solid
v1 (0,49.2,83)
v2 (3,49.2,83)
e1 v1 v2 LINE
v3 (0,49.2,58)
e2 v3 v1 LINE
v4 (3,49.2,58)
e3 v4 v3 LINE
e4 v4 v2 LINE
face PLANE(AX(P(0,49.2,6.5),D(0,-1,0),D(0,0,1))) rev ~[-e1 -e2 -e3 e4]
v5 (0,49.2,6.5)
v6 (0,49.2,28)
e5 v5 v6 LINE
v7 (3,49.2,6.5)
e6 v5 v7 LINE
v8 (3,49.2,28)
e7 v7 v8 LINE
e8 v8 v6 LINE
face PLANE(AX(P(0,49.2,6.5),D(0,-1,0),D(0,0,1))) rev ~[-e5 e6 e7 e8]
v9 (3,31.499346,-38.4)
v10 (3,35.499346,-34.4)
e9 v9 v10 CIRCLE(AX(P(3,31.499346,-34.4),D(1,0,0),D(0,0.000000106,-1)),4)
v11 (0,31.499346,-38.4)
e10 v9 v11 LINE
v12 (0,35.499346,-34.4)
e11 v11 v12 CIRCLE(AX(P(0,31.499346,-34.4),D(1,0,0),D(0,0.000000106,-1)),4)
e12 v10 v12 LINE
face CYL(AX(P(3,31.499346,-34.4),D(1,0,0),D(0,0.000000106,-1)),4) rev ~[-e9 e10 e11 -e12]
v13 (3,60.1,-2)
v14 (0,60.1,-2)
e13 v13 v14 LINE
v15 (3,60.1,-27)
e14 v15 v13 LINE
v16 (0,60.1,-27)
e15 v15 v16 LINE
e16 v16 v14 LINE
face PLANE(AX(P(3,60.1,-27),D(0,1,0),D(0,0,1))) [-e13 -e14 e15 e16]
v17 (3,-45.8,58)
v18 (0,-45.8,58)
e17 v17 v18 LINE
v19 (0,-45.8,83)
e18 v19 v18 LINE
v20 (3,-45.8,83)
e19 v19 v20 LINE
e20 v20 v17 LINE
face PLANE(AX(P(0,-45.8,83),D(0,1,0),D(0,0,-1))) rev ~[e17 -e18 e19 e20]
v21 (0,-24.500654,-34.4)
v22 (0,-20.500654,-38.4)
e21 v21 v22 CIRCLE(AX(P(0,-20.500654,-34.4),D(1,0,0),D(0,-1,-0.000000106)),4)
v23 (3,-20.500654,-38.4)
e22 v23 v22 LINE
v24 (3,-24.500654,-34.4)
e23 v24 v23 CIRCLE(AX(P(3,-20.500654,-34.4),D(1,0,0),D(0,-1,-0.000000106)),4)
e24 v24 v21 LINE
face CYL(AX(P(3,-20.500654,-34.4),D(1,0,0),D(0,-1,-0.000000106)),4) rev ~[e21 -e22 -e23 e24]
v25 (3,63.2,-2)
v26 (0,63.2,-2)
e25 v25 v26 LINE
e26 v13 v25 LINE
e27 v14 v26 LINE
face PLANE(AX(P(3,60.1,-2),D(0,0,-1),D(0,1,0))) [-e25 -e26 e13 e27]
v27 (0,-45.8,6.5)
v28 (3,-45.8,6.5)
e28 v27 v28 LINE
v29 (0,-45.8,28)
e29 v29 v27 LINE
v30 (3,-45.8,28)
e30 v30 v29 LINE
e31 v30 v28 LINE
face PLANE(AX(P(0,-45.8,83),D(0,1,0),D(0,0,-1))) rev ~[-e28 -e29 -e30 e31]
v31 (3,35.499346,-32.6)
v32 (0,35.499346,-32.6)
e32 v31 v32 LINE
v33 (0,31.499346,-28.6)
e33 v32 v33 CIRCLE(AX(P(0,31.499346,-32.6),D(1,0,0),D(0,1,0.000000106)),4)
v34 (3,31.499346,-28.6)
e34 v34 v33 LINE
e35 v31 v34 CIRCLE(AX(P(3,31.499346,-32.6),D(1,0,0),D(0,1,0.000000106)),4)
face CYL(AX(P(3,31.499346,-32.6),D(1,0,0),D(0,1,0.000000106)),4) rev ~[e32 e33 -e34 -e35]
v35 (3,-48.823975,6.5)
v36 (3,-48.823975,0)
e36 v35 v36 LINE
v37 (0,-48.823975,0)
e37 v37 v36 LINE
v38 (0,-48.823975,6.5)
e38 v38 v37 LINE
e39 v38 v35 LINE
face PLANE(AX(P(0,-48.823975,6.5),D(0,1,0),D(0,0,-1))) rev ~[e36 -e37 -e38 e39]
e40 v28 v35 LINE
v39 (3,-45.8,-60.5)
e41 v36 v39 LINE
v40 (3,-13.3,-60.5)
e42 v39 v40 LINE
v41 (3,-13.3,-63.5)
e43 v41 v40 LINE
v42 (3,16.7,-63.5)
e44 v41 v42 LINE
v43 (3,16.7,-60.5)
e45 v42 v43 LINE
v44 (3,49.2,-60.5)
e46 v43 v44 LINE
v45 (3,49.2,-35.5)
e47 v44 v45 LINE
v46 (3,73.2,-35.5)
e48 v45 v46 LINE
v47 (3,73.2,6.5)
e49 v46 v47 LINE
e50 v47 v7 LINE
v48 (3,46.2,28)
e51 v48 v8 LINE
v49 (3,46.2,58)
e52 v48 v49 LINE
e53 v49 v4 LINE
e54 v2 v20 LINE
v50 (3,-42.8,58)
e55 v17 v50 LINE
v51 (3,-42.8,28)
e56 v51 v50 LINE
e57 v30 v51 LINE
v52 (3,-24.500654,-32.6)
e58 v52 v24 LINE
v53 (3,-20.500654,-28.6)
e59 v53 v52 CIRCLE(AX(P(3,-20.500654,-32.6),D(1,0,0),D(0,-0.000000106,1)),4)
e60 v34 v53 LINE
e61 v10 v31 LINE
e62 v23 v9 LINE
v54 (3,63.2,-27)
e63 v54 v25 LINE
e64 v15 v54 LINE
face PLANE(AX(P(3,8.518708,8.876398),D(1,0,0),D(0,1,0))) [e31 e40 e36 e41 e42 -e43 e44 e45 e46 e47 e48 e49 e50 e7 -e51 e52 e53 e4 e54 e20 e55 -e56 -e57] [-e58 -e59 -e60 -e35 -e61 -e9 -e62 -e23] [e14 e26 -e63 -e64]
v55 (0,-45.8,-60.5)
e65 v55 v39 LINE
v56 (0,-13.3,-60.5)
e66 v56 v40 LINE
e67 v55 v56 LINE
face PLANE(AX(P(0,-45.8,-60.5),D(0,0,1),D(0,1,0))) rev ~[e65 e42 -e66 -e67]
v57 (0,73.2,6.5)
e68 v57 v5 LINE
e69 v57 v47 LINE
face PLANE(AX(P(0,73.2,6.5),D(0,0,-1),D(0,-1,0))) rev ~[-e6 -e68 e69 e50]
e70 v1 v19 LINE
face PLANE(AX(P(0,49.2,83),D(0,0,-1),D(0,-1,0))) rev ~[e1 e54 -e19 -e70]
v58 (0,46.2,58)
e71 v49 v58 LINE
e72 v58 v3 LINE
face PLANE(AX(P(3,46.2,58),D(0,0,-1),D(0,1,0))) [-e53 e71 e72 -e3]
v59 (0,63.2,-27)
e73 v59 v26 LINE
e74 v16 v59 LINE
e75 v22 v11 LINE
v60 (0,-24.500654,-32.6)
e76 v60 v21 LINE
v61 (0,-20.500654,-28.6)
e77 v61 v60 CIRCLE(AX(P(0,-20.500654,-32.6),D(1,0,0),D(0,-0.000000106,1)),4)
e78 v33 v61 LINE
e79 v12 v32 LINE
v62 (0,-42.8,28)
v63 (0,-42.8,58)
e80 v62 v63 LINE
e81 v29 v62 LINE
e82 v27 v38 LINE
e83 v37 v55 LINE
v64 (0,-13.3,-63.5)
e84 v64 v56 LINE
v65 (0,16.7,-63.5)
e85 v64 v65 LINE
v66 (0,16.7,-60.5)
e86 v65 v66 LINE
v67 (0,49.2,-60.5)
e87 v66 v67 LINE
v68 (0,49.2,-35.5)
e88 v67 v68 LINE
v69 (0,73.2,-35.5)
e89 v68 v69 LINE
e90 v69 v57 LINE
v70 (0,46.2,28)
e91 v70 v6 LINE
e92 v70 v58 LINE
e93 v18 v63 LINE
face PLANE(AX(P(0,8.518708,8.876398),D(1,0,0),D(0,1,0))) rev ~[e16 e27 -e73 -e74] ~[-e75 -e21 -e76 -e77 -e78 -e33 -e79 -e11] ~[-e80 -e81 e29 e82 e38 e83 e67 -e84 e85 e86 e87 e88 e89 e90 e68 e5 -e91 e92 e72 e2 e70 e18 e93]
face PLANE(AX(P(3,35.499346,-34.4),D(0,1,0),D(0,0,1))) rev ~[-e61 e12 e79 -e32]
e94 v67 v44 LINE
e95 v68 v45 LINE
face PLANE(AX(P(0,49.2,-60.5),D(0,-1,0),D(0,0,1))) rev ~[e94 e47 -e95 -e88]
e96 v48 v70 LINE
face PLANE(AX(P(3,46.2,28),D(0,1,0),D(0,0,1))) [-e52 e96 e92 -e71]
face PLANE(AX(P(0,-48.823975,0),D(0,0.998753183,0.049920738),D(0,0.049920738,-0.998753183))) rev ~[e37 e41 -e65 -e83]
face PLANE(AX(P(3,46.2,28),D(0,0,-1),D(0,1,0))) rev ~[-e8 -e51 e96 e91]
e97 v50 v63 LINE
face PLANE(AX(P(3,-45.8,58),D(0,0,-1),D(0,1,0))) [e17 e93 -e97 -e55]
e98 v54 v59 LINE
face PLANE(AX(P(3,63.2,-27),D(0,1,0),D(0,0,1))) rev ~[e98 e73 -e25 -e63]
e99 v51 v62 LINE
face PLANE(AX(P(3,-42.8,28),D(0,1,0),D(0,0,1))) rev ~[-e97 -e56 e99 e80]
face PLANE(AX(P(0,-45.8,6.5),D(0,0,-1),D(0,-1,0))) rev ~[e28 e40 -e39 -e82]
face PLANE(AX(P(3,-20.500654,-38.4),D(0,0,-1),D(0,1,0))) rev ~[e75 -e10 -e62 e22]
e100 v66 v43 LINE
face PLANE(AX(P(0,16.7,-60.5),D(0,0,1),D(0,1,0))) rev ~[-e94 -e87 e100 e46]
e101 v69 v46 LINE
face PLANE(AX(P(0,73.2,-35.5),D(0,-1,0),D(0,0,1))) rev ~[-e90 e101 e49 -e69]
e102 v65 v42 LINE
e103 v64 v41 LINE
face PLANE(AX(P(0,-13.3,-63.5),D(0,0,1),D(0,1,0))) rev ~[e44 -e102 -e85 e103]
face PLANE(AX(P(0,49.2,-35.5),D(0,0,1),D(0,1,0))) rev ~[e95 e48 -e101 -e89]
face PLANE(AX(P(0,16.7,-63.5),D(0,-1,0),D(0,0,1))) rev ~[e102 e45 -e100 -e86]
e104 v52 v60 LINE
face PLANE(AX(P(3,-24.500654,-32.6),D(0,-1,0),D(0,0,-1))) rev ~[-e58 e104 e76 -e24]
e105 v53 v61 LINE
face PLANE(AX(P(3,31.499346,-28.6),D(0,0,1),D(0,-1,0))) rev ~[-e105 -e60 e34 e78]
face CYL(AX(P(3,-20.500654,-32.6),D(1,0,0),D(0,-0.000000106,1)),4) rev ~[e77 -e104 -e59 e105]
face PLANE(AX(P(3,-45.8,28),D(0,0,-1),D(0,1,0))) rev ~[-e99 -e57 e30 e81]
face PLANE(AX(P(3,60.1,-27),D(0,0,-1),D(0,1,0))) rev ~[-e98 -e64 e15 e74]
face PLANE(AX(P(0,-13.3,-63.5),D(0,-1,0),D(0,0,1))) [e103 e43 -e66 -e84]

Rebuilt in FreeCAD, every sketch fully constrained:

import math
import FreeCAD as App
import Part
import Sketcher
Q = App.Units.Quantity


def add_polygon(sketch, points):
    """Adds a closed chain of lines whose ends are joined by coincident constraints."""
    first, n = sketch.GeometryCount, len(points)
    for a, b in zip(points, points[1:] + points[:1]):
        sketch.addGeometry(Part.LineSegment(App.Vector(*a, 0), App.Vector(*b, 0)), False)
    for i in range(n):
        sketch.addConstraint(Sketcher.Constraint("Coincident", first + i, 2, first + (i + 1) % n, 1))

doc = App.newDocument("Part")
body = doc.addObject("PartDesign::Body", "Body")

# Sketch on YZ plane
sketch1 = doc.addObject("Sketcher::SketchObject", "Sketch")
body.addObject(sketch1)
sketch1.AttachmentSupport = (doc.YZ_Plane, [""])
sketch1.MapMode = "FlatFace"
add_polygon(sketch1, [(-45.8, 83), (-45.8, 6.5), (-48.823975, 6.5), (-48.823975, 0), (-45.8, -60.5), (-13.3, -60.5), (-13.3, -63.5), (16.7, -63.5), (16.7, -60.5), (49.2, -60.5), (49.2, -35.5), (73.2, -35.5), (73.2, 6.5), (49.2, 6.5), (49.2, 83)])  # lines 0-14
sketch1.addConstraint(Sketcher.Constraint("Vertical", 0))
sketch1.addConstraint(Sketcher.Constraint("Horizontal", 1))
sketch1.addConstraint(Sketcher.Constraint("Vertical", 2))
sketch1.addConstraint(Sketcher.Constraint("Horizontal", 4))
sketch1.addConstraint(Sketcher.Constraint("Vertical", 5))
sketch1.addConstraint(Sketcher.Constraint("Horizontal", 6))
sketch1.addConstraint(Sketcher.Constraint("Vertical", 7))
sketch1.addConstraint(Sketcher.Constraint("Horizontal", 8))
sketch1.addConstraint(Sketcher.Constraint("Vertical", 9))
sketch1.addConstraint(Sketcher.Constraint("Horizontal", 10))
sketch1.addConstraint(Sketcher.Constraint("Vertical", 11))
sketch1.addConstraint(Sketcher.Constraint("Horizontal", 12))
sketch1.addConstraint(Sketcher.Constraint("Vertical", 13))
sketch1.addConstraint(Sketcher.Constraint("Horizontal", 14))
sketch1.addConstraint(Sketcher.Constraint("PointOnObject", 2, 2, -1))
sketch1.addConstraint(Sketcher.Constraint("Horizontal", 4, 2, 7, 2))
sketch1.addConstraint(Sketcher.Constraint("Horizontal", 1, 2, 11, 2))
sketch1.addConstraint(Sketcher.Constraint("Vertical", 0, 2, 3, 2))
sketch1.addConstraint(Sketcher.Constraint("Vertical", 9, 2, 12, 2))
sketch1.addConstraint(Sketcher.Constraint("Equal", 4, 8))
sketch1.addConstraint(Sketcher.Constraint("DistanceX", 6, 1, 6, 2, Q("30 mm")))
sketch1.addConstraint(Sketcher.Constraint("DistanceX", 10, 1, 10, 2, Q("24 mm")))
sketch1.addConstraint(Sketcher.Constraint("DistanceX", 14, 2, 14, 1, Q("95 mm")))
sketch1.addConstraint(Sketcher.Constraint("DistanceY", 5, 2, 5, 1, Q("3 mm")))
sketch1.addConstraint(Sketcher.Constraint("DistanceY", 9, 1, 9, 2, Q("25 mm")))
sketch1.addConstraint(Sketcher.Constraint("DistanceY", 11, 1, 11, 2, Q("42 mm")))
sketch1.addConstraint(Sketcher.Constraint("DistanceY", 0, 2, 0, 1, Q("76.5 mm")))
sketch1.addConstraint(Sketcher.Constraint("DistanceY", 2, 2, 2, 1, Q("6.5 mm")))
sketch1.addConstraint(Sketcher.Constraint("DistanceX", 0, 2, -1, 1, Q("45.8 mm")))
sketch1.addConstraint(Sketcher.Constraint("DistanceX", 1, 2, 1, 1, Q("3.023975 mm")))
pad1 = doc.addObject("PartDesign::Pad", "Pad")
body.addObject(pad1)
pad1.Profile = sketch1
pad1.Length = 3

# Sketch on YZ plane
sketch2 = doc.addObject("Sketcher::SketchObject", "Sketch001")
body.addObject(sketch2)
sketch2.AttachmentSupport = (doc.YZ_Plane, [""])
sketch2.MapMode = "FlatFace"
sketch2.AttachmentOffset = App.Placement(App.Vector(0, 0, 3), App.Rotation())
add_polygon(sketch2, [(60.1, -2), (60.1, -27), (63.2, -27), (63.2, -2)])  # lines 0-3
sketch2.addConstraint(Sketcher.Constraint("Vertical", 0))
sketch2.addConstraint(Sketcher.Constraint("Horizontal", 1))
sketch2.addConstraint(Sketcher.Constraint("Vertical", 2))
sketch2.addConstraint(Sketcher.Constraint("Horizontal", 3))
sketch2.addConstraint(Sketcher.Constraint("DistanceY", 0, 2, 0, 1, Q("25 mm")))
sketch2.addConstraint(Sketcher.Constraint("DistanceX", 1, 1, 1, 2, Q("3.1 mm")))
sketch2.addConstraint(Sketcher.Constraint("DistanceY", 0, 2, -1, 1, Q("27 mm")))
sketch2.addConstraint(Sketcher.Constraint("DistanceX", -1, 1, 0, 2, Q("60.1 mm")))
pocket1 = doc.addObject("PartDesign::Pocket", "Pocket")
body.addObject(pocket1)
pocket1.Profile = sketch2
pocket1.Length = 25

# Sketch on YZ plane
sketch3 = doc.addObject("Sketcher::SketchObject", "Sketch002")
body.addObject(sketch3)
sketch3.AttachmentSupport = (doc.YZ_Plane, [""])
sketch3.MapMode = "FlatFace"
sketch3.AttachmentOffset = App.Placement(App.Vector(0, 0, 3), App.Rotation())
sketch3.addGeometry(Part.LineSegment(App.Vector(31.499346, -28.6, 0), App.Vector(-20.500654, -28.6, 0)), False)
sketch3.addGeometry(Part.ArcOfCircle(Part.Circle(App.Vector(-20.500654, -32.6, 0), App.Vector(0, 0, 1), 4), math.radians(90.000006), math.radians(179.999994)), False)
sketch3.addGeometry(Part.LineSegment(App.Vector(-24.500654, -32.6, 0), App.Vector(-24.500654, -34.4, 0)), False)
sketch3.addGeometry(Part.ArcOfCircle(Part.Circle(App.Vector(-20.500654, -34.4, 0), App.Vector(0, 0, 1), 4), math.radians(-179.999994), math.radians(-90.000006)), False)
sketch3.addGeometry(Part.LineSegment(App.Vector(-20.500654, -38.4, 0), App.Vector(31.499346, -38.4, 0)), False)
sketch3.addGeometry(Part.ArcOfCircle(Part.Circle(App.Vector(31.499346, -34.4, 0), App.Vector(0, 0, 1), 4), math.radians(-89.999994), math.radians(-0.000006)), False)
sketch3.addGeometry(Part.LineSegment(App.Vector(35.499346, -34.4, 0), App.Vector(35.499346, -32.6, 0)), False)
sketch3.addGeometry(Part.ArcOfCircle(Part.Circle(App.Vector(31.499346, -32.6, 0), App.Vector(0, 0, 1), 4), math.radians(0.000006), math.radians(89.999994)), False)
sketch3.addConstraint(Sketcher.Constraint("Tangent", 0, 2, 1, 1))
sketch3.addConstraint(Sketcher.Constraint("Tangent", 1, 2, 2, 1))
sketch3.addConstraint(Sketcher.Constraint("Tangent", 2, 2, 3, 1))
sketch3.addConstraint(Sketcher.Constraint("Tangent", 3, 2, 4, 1))
sketch3.addConstraint(Sketcher.Constraint("Tangent", 4, 2, 5, 1))
sketch3.addConstraint(Sketcher.Constraint("Tangent", 5, 2, 6, 1))
sketch3.addConstraint(Sketcher.Constraint("Tangent", 6, 2, 7, 1))
sketch3.addConstraint(Sketcher.Constraint("Tangent", 7, 2, 0, 1))
sketch3.addConstraint(Sketcher.Constraint("Horizontal", 0))
sketch3.addConstraint(Sketcher.Constraint("Vertical", 2))
sketch3.addConstraint(Sketcher.Constraint("Horizontal", 4))
sketch3.addConstraint(Sketcher.Constraint("Vertical", 6))
sketch3.addConstraint(Sketcher.Constraint("Equal", 1, 3))
sketch3.addConstraint(Sketcher.Constraint("Equal", 3, 5))
sketch3.addConstraint(Sketcher.Constraint("Equal", 5, 7))
sketch3.addConstraint(Sketcher.Constraint("Radius", 1, Q("4 mm")))
sketch3.addConstraint(Sketcher.Constraint("DistanceX", 0, 2, 0, 1, Q("52 mm")))
sketch3.addConstraint(Sketcher.Constraint("DistanceY", 2, 2, 2, 1, Q("1.8 mm")))
sketch3.addConstraint(Sketcher.Constraint("DistanceY", 1, 3, -1, 1, Q("32.6 mm")))
sketch3.addConstraint(Sketcher.Constraint("DistanceX", 1, 3, -1, 1, Q("20.500654 mm")))
pocket2 = doc.addObject("PartDesign::Pocket", "Pocket001")
body.addObject(pocket2)
pocket2.Profile = sketch3
pocket2.Length = 25

# Sketch on YZ plane
sketch4 = doc.addObject("Sketcher::SketchObject", "Sketch003")
body.addObject(sketch4)
sketch4.AttachmentSupport = (doc.YZ_Plane, [""])
sketch4.MapMode = "FlatFace"
sketch4.AttachmentOffset = App.Placement(App.Vector(0, 0, 3), App.Rotation())
add_polygon(sketch4, [(-45.8, 58), (-45.8, 28), (-42.8, 28), (-42.8, 58)])  # lines 0-3
add_polygon(sketch4, [(46.2, 58), (46.2, 28), (49.2, 28), (49.2, 58)])  # lines 4-7
sketch4.addConstraint(Sketcher.Constraint("Vertical", 0))
sketch4.addConstraint(Sketcher.Constraint("Horizontal", 1))
sketch4.addConstraint(Sketcher.Constraint("Vertical", 2))
sketch4.addConstraint(Sketcher.Constraint("Horizontal", 3))
sketch4.addConstraint(Sketcher.Constraint("Vertical", 4))
sketch4.addConstraint(Sketcher.Constraint("Horizontal", 5))
sketch4.addConstraint(Sketcher.Constraint("Vertical", 6))
sketch4.addConstraint(Sketcher.Constraint("Horizontal", 7))
sketch4.addConstraint(Sketcher.Constraint("Horizontal", 1, 2, 4, 2))
sketch4.addConstraint(Sketcher.Constraint("Horizontal", 3, 2, 6, 2))
sketch4.addConstraint(Sketcher.Constraint("Equal", 3, 5))
sketch4.addConstraint(Sketcher.Constraint("DistanceX", 1, 1, 1, 2, Q("3 mm")))
sketch4.addConstraint(Sketcher.Constraint("DistanceY", 0, 2, 0, 1, Q("30 mm")))
sketch4.addConstraint(Sketcher.Constraint("DistanceY", -1, 1, 0, 2, Q("28 mm")))
sketch4.addConstraint(Sketcher.Constraint("DistanceX", 1, 2, 4, 2, Q("89 mm")))
sketch4.addConstraint(Sketcher.Constraint("DistanceX", 0, 2, -1, 1, Q("45.8 mm")))
pocket3 = doc.addObject("PartDesign::Pocket", "Pocket002")
body.addObject(pocket3)
pocket3.Profile = sketch4
pocket3.Length = 25

doc.recompute()
